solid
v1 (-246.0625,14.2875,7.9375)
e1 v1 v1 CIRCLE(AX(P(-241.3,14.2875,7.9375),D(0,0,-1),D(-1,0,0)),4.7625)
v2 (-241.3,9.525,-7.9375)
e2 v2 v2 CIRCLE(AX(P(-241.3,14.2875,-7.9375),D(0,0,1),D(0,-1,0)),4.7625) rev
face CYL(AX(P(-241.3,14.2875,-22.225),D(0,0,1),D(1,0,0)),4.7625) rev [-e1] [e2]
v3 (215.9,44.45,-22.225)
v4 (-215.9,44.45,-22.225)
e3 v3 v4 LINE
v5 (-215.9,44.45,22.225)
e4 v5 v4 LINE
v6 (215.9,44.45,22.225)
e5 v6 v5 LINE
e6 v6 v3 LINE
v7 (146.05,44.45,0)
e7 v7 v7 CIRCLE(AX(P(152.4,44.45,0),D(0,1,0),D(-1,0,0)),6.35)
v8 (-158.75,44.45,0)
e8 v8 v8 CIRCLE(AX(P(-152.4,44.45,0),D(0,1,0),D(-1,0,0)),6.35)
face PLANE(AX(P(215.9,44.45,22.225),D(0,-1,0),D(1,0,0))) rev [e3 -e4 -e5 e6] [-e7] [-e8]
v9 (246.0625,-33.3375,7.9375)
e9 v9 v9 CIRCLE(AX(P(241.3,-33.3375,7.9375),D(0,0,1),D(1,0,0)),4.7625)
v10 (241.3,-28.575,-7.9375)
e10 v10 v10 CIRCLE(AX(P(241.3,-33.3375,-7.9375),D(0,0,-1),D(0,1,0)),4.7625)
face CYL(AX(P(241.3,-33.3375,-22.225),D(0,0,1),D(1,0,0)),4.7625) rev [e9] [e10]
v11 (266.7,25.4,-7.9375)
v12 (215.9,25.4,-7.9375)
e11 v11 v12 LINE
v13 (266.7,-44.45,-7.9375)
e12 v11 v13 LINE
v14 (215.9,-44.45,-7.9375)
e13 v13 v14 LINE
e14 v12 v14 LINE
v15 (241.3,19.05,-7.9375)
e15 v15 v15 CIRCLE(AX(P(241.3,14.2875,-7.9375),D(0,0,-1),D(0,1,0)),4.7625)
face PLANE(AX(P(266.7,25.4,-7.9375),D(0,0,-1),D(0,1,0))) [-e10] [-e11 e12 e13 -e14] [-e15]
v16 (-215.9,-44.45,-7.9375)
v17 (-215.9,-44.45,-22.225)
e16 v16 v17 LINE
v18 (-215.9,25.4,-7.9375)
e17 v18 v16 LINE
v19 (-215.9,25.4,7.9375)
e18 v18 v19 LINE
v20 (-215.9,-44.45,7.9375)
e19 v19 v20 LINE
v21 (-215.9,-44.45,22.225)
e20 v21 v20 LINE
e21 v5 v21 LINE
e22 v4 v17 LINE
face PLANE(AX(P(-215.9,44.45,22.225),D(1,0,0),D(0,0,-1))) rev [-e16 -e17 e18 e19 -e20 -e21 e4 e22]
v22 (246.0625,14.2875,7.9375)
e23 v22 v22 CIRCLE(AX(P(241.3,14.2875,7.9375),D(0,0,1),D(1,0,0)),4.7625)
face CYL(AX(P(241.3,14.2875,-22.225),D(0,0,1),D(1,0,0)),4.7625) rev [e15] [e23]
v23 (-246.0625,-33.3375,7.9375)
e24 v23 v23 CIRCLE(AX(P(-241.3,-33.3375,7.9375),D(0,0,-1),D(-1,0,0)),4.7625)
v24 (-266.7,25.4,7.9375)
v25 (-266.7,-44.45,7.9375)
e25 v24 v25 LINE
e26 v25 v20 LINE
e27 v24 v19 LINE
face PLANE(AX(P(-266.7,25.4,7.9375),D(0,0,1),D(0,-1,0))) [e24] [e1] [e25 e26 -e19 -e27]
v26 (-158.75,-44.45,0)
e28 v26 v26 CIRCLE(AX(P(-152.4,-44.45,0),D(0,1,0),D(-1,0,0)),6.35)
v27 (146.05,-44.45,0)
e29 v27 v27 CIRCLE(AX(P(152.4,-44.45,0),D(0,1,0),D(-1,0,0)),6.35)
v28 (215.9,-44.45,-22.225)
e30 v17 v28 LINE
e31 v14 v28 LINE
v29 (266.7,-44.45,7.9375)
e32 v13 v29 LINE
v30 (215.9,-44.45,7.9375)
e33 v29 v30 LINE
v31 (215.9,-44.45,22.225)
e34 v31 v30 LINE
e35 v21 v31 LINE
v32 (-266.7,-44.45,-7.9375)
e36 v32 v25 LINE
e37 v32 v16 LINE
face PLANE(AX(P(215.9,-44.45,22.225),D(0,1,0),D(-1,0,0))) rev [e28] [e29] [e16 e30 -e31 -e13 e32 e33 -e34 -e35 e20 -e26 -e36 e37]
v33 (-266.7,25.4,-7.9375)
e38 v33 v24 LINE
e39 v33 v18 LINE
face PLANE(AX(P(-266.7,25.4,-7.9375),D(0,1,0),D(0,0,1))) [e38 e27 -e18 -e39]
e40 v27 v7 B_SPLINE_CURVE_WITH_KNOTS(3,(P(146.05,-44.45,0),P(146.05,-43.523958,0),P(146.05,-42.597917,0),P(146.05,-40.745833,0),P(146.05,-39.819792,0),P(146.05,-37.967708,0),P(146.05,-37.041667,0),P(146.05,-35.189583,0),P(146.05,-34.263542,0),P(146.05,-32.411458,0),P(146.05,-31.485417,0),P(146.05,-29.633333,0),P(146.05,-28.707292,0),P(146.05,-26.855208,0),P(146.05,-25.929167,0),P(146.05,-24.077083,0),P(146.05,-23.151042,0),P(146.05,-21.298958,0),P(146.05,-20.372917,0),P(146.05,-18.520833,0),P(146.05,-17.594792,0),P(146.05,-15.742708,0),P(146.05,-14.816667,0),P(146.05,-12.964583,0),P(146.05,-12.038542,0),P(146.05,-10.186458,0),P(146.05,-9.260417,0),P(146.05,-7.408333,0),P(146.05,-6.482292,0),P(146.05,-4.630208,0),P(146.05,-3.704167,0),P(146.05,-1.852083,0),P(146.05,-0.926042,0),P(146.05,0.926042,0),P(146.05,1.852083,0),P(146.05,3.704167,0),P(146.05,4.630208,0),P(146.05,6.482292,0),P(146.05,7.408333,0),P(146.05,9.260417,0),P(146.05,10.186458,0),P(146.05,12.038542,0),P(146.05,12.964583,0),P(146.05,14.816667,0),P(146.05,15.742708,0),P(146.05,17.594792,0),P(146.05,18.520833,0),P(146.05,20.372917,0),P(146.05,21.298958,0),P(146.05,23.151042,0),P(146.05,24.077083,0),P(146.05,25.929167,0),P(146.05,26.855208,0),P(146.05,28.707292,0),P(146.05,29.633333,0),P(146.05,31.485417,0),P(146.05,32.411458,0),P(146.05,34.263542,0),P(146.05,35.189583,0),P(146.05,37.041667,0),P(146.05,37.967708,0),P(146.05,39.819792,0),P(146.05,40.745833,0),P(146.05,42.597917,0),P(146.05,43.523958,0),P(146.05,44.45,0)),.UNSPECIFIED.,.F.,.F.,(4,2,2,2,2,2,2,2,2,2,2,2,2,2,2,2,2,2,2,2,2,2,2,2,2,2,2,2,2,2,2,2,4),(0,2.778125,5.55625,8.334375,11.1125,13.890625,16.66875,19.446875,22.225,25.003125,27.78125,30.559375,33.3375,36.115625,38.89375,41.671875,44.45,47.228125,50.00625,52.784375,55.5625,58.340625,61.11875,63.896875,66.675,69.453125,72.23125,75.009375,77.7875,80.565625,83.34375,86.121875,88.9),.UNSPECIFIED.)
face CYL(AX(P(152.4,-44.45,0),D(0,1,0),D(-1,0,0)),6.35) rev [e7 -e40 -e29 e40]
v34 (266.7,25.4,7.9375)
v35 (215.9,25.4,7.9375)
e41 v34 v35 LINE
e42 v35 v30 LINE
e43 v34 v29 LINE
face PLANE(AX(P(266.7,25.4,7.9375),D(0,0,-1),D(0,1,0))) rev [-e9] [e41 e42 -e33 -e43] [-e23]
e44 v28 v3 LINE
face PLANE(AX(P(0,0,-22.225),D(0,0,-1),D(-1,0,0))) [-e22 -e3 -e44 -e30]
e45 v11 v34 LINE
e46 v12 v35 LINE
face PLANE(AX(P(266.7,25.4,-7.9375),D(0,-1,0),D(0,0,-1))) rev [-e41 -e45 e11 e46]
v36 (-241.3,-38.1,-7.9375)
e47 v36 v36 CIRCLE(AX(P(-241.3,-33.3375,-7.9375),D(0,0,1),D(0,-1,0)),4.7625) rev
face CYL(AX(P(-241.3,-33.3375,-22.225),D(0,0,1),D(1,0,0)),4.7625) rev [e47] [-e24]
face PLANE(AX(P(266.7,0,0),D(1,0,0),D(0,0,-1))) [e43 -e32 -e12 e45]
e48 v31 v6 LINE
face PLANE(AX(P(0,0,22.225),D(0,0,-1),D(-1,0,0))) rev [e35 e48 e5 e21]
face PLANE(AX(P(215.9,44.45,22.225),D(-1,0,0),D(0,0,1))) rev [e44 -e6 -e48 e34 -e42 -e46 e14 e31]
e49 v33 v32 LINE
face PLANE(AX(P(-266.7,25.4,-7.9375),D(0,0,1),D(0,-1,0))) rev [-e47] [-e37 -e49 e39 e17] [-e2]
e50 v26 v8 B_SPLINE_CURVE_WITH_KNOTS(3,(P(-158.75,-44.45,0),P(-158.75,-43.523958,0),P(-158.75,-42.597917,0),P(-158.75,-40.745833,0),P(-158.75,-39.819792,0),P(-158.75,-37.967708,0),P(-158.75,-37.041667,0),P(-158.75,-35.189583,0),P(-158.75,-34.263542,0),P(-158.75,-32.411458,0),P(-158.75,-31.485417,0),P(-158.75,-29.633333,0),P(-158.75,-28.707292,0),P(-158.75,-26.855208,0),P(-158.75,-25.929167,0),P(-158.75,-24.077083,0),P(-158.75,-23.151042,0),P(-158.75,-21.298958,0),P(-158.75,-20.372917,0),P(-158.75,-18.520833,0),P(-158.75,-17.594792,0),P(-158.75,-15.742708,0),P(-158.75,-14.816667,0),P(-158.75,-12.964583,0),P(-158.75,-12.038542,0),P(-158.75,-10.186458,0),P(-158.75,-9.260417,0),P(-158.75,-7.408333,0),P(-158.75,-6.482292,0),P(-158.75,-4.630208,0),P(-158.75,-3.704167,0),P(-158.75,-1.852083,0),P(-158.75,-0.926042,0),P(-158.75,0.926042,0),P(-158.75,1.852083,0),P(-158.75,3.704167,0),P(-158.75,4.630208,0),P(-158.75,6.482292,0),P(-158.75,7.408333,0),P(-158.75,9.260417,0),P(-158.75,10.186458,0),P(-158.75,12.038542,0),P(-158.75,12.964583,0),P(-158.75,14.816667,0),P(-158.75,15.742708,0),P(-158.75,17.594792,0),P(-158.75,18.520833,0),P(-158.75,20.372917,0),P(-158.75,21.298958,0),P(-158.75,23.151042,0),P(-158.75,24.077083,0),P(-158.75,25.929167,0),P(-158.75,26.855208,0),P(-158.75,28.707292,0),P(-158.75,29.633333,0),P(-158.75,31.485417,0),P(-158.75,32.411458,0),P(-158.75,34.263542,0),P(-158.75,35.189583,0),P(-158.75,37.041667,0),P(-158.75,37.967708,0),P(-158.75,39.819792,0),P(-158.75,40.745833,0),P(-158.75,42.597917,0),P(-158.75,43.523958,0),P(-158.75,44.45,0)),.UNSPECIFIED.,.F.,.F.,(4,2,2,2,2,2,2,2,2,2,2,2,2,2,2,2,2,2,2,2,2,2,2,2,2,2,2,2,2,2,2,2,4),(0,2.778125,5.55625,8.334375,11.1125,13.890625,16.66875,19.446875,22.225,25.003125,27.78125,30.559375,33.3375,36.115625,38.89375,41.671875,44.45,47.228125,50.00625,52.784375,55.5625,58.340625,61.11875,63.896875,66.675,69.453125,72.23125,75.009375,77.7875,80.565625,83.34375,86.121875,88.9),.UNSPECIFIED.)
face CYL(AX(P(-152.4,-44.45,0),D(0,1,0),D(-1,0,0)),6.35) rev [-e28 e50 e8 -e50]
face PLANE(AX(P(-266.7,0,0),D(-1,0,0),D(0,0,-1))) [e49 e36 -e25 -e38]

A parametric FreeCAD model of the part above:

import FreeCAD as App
import Part
import Sketcher
Q = App.Units.Quantity

doc = App.newDocument("Part")
body = doc.addObject("PartDesign::Body", "Body")

sketch1 = body.newObject("Sketcher::SketchObject", "Sketch")
sketch1.AttachmentSupport = (doc.getObject("XY_Plane"), [""])
sketch1.MapMode = "FlatFace"
sketch1.addGeometry([
    Part.LineSegment(App.Vector(-216, 44, 0), App.Vector(-216, -44, 0)),
    Part.LineSegment(App.Vector(-216, -44, 0), App.Vector(216, -44, 0)),
    Part.LineSegment(App.Vector(216, -44, 0), App.Vector(216, 44, 0)),
    Part.LineSegment(App.Vector(216, 44, 0), App.Vector(-216, 44, 0)),
], False)
sketch1.addConstraint([
    Sketcher.Constraint("Coincident", 0, 2, 1, 1),
    Sketcher.Constraint("Coincident", 1, 2, 2, 1),
    Sketcher.Constraint("Coincident", 2, 2, 3, 1),
    Sketcher.Constraint("Coincident", 3, 2, 0, 1),
    Sketcher.Constraint("Vertical", 0),
    Sketcher.Constraint("Horizontal", 1),
    Sketcher.Constraint("Vertical", 2),
    Sketcher.Constraint("Horizontal", 3),
    Sketcher.Constraint("Symmetric", 0, 2, 2, 2, -1, 1),
    Sketcher.Constraint("DistanceX", 1, 1, 1, 2, Q("17 in")),
    Sketcher.Constraint("DistanceY", 0, 2, 0, 1, Q("3.5 in")),
])
pad1 = body.newObject("PartDesign::Pad", "Pad")
pad1.Profile = sketch1
pad1.Length = Q("1.75 in")
pad1.Midplane = True

sketch2 = body.newObject("Sketcher::SketchObject", "Sketch001")
sketch2.AttachmentSupport = (doc.getObject("YZ_Plane"), [""])
sketch2.MapMode = "FlatFace"
sketch2.AttachmentOffset = App.Placement(App.Vector(0, 0, 8.5 * 25.4), App.Rotation())
sketch2.addGeometry([
    Part.LineSegment(App.Vector(25, 8, 0), App.Vector(-44, 8, 0)),
    Part.LineSegment(App.Vector(-44, 8, 0), App.Vector(-44, -8, 0)),
    Part.LineSegment(App.Vector(-44, -8, 0), App.Vector(25, -8, 0)),
    Part.LineSegment(App.Vector(25, -8, 0), App.Vector(25, 8, 0)),
], False)
sketch2.addConstraint([
    Sketcher.Constraint("Coincident", 0, 2, 1, 1),
    Sketcher.Constraint("Coincident", 1, 2, 2, 1),
    Sketcher.Constraint("Coincident", 2, 2, 3, 1),
    Sketcher.Constraint("Coincident", 3, 2, 0, 1),
    Sketcher.Constraint("Horizontal", 0),
    Sketcher.Constraint("Vertical", 1),
    Sketcher.Constraint("Horizontal", 2),
    Sketcher.Constraint("Vertical", 3),
    Sketcher.Constraint("DistanceX", -1, 1, 2, 2, Q("1 in")),
    Sketcher.Constraint("DistanceX", 0, 2, 0, 1, Q("2.75 in")),
    Sketcher.Constraint("DistanceY", 1, 2, 1, 1, Q("0.625 in")),
    Sketcher.Constraint("DistanceY", -1, 1, 0, 2, Q("0.3125 in")),
])
pad2 = body.newObject("PartDesign::Pad", "Pad001")
pad2.Profile = sketch2
pad2.Length = Q("2 in")

sketch3 = body.newObject("Sketcher::SketchObject", "Sketch002")
sketch3.AttachmentSupport = (doc.getObject("XY_Plane"), [""])
sketch3.MapMode = "FlatFace"
sketch3.AttachmentOffset = App.Placement(App.Vector(0, 0, 0.3125 * 25.4), App.Rotation())
sketch3.addGeometry([
    Part.Circle(App.Vector(241.3, 14.3, 0), App.Vector(0, 0, 1), 4.8),
    Part.Circle(App.Vector(241.3, -33.3, 0), App.Vector(0, 0, 1), 4.8),
], False)
sketch3.addConstraint([
    Sketcher.Constraint("Equal", 0, 1),
    Sketcher.Constraint("Vertical", 0, 3, 1, 3),
    Sketcher.Constraint("Diameter", 0, Q("0.375 in")),
    Sketcher.Constraint("DistanceX", -1, 1, 0, 3, Q("9.5 in")),
    Sketcher.Constraint("DistanceY", -1, 1, 0, 3, Q("0.5625 in")),
    Sketcher.Constraint("DistanceY", 1, 3, -1, 1, Q("1.3125 in")),
])
pocket1 = body.newObject("PartDesign::Pocket", "Pocket")
pocket1.Profile = sketch3
pocket1.Type = "ThroughAll"
doc.recompute()

mirrored = body.newObject("PartDesign::Mirrored", "Mirrored")
mirrored.Originals = [pad2, pocket1]
mirrored.MirrorPlane = (doc.getObject("YZ_Plane"), [""])
body.Tip = mirrored

sketch4 = body.newObject("Sketcher::SketchObject", "Sketch003")
sketch4.AttachmentSupport = (doc.getObject("XZ_Plane"), [""])
sketch4.MapMode = "FlatFace"
sketch4.AttachmentOffset = App.Placement(App.Vector(0, 0, -1.75 * 25.4), App.Rotation())
sketch4.addGeometry([
    Part.Circle(App.Vector(-152, 0, 0), App.Vector(0, 0, 1), 6),
    Part.Circle(App.Vector(152, 0, 0), App.Vector(0, 0, 1), 6),
], False)
sketch4.addConstraint([
    Sketcher.Constraint("Equal", 0, 1),
    Sketcher.Constraint("Symmetric", 0, 3, 1, 3, -1, 1),
    Sketcher.Constraint("PointOnObject", 0, 3, -1),
    Sketcher.Constraint("Diameter", 0, Q("0.5 in")),
    Sketcher.Constraint("DistanceX", 0, 3, -1, 1, Q("6 in")),
])
pocket2 = body.newObject("PartDesign::Pocket", "Pocket001")
pocket2.Profile = sketch4
pocket2.Type = "ThroughAll"
pocket2.Reversed = True

doc.recompute()
